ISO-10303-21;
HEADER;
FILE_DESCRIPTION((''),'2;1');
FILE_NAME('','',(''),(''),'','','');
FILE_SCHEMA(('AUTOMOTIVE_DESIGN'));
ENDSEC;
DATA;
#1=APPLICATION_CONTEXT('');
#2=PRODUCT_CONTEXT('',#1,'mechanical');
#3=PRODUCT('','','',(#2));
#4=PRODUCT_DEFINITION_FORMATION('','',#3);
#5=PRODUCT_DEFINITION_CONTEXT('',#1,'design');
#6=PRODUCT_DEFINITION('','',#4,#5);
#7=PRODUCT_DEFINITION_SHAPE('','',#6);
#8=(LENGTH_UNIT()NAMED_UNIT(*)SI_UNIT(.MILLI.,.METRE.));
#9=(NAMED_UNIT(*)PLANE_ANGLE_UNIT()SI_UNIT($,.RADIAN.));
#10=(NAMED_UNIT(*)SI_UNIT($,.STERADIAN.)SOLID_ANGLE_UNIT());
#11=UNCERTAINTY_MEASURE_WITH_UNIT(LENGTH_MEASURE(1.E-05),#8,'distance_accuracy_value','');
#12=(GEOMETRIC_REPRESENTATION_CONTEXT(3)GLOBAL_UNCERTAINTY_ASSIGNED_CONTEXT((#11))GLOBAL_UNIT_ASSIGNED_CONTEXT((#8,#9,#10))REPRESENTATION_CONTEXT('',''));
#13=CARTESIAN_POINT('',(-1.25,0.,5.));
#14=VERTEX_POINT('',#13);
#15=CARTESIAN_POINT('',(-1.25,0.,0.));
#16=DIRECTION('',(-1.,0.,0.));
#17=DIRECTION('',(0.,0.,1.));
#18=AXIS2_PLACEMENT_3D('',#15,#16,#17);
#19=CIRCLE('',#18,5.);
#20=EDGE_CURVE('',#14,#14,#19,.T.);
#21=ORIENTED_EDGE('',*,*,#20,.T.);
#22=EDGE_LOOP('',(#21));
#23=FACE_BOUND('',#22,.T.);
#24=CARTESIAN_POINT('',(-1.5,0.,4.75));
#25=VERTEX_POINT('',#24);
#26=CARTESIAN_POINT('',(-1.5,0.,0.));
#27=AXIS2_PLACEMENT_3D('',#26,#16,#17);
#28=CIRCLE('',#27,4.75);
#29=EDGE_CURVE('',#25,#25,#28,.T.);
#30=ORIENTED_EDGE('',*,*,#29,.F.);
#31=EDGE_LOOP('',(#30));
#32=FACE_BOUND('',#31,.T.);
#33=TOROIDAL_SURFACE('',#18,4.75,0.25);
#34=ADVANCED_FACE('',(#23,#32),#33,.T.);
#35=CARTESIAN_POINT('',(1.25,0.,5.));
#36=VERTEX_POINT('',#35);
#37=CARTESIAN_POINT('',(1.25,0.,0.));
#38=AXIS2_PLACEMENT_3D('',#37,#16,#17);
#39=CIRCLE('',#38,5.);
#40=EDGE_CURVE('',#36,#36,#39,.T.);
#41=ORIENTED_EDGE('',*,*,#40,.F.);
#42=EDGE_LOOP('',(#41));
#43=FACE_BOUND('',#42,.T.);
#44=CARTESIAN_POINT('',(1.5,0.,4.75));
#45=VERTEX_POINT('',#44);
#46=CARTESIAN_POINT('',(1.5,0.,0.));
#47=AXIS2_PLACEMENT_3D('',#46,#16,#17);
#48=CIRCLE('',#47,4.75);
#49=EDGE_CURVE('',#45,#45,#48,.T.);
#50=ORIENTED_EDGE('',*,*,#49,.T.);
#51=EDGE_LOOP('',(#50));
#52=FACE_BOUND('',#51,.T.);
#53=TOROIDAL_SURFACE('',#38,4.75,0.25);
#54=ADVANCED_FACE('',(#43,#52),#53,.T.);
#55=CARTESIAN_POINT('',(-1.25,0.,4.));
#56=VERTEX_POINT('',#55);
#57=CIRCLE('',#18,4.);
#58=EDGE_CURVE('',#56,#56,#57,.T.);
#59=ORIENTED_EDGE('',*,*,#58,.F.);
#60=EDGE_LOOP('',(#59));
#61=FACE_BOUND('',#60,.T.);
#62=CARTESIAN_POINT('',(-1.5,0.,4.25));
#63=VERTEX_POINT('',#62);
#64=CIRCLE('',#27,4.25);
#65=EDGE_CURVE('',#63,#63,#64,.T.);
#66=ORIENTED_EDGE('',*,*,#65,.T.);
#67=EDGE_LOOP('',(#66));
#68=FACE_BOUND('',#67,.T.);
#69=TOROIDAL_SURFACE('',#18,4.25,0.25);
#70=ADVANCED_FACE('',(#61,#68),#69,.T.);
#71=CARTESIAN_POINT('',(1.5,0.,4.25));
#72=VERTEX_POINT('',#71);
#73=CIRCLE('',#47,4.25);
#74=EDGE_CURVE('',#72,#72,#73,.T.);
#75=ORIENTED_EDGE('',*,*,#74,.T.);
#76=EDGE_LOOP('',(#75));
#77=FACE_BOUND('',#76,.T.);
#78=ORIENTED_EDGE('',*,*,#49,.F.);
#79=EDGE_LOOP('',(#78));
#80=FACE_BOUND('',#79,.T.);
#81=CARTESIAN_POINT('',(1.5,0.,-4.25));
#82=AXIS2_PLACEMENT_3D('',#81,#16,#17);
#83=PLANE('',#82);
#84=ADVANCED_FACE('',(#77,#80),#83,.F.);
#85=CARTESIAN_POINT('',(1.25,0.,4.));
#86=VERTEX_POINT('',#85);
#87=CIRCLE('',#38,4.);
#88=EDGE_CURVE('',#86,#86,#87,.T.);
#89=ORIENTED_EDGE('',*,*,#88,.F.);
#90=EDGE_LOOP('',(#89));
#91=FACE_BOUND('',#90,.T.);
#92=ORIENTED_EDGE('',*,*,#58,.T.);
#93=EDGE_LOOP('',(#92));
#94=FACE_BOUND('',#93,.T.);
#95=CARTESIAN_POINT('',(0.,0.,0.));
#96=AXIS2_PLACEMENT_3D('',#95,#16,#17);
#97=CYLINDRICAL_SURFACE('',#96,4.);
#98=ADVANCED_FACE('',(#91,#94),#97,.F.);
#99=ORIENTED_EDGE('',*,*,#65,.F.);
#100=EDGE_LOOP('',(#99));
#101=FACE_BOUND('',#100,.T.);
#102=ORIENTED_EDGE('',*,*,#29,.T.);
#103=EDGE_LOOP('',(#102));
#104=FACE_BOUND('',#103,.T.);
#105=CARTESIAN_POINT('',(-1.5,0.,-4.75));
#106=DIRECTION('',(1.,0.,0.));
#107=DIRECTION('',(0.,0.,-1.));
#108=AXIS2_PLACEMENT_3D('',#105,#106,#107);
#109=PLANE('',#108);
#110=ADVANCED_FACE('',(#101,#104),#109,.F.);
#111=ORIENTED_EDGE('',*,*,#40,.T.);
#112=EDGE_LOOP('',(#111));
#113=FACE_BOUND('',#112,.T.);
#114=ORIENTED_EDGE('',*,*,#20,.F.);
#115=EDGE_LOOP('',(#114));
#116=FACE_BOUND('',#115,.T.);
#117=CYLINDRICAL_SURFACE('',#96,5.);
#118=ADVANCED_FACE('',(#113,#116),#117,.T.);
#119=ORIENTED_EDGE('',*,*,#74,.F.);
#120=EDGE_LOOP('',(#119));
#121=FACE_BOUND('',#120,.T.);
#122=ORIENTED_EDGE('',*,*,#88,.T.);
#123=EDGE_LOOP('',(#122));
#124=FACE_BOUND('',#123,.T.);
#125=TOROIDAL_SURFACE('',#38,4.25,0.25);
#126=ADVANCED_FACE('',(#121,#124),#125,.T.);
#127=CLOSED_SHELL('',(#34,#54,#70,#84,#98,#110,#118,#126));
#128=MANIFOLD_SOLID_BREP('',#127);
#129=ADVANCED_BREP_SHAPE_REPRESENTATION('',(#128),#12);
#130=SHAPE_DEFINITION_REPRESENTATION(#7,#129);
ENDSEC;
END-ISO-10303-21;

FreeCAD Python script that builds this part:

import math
import FreeCAD as App
import Part
import Sketcher
from FreeCAD import Vector
Q = App.Units.Quantity

doc = App.newDocument("Part")
params = doc.addObject("Spreadsheet::Sheet", "Params")
for row, (alias, value) in enumerate([
    ("sketch1_radius", "0.25 mm"),
    ("sketch1_width", "2.5 mm"),
    ("sketch1_height", "0.5 mm"),
    ("revolution_angle", "360 deg"),
], start=1):
    params.set(f"A{row}", alias)
    params.set(f"B{row}", "=" + value)
    params.setAlias(f"B{row}", alias)

body = doc.addObject("PartDesign::Body", "Body")

# Sketch on XZ plane
sketch1 = doc.addObject("Sketcher::SketchObject", "Sketch")
body.addObject(sketch1)
sketch1.AttachmentSupport = (doc.XZ_Plane, [""])
sketch1.MapMode = "FlatFace"
sketch1.addGeometry([
    Part.LineSegment(Vector(1.5, -4.25, 0), Vector(1.5, -4.75, 0)),  # 0
    Part.ArcOfCircle(Part.Circle(Vector(1.25, -4.75, 0), Vector(0, 0, 1), 0.25), math.radians(-90), math.radians(0)),  # 1
    Part.LineSegment(Vector(1.25, -5, 0), Vector(-1.25, -5, 0)),  # 2
    Part.ArcOfCircle(Part.Circle(Vector(-1.25, -4.75, 0), Vector(0, 0, 1), 0.25), math.radians(-180), math.radians(-90)),  # 3
    Part.LineSegment(Vector(-1.5, -4.75, 0), Vector(-1.5, -4.25, 0)),  # 4
    Part.ArcOfCircle(Part.Circle(Vector(-1.25, -4.25, 0), Vector(0, 0, 1), 0.25), math.radians(90), math.radians(180)),  # 5
    Part.LineSegment(Vector(-1.25, -4, 0), Vector(1.25, -4, 0)),  # 6
    Part.ArcOfCircle(Part.Circle(Vector(1.25, -4.25, 0), Vector(0, 0, 1), 0.25), math.radians(0), math.radians(90)),  # 7
], False)
sketch1.addConstraint([
    Sketcher.Constraint("Tangent", 0, 2, 1, 2),
    Sketcher.Constraint("Tangent", 1, 1, 2, 1),
    Sketcher.Constraint("Tangent", 2, 2, 3, 2),
    Sketcher.Constraint("Tangent", 3, 1, 4, 1),
    Sketcher.Constraint("Tangent", 4, 2, 5, 2),
    Sketcher.Constraint("Tangent", 5, 1, 6, 1),
    Sketcher.Constraint("Tangent", 6, 2, 7, 2),
    Sketcher.Constraint("Tangent", 7, 1, 0, 1),
    Sketcher.Constraint("Vertical", 0),
    Sketcher.Constraint("Horizontal", 2),
    Sketcher.Constraint("Vertical", 4),
    Sketcher.Constraint("Horizontal", 6),
    Sketcher.Constraint("Equal", 1, 3),
    Sketcher.Constraint("Equal", 3, 5),
    Sketcher.Constraint("Equal", 5, 7),
    Sketcher.Constraint("Radius", 1, Q("0.25 mm")),
    Sketcher.Constraint("DistanceX", 2, 2, 2, 1, Q("2.5 mm")),
    Sketcher.Constraint("DistanceY", 0, 2, 0, 1, Q("0.5 mm")),
    Sketcher.Constraint("DistanceY", 1, 1, -1, 1, Q("5 mm")),
    Sketcher.Constraint("DistanceX", -1, 1, 0, 2, Q("1.5 mm")),
])
sketch1.setExpression("Constraints[15]", "Params.sketch1_radius")
sketch1.setExpression("Constraints[16]", "Params.sketch1_width")
sketch1.setExpression("Constraints[17]", "Params.sketch1_height")
revolution = doc.addObject("PartDesign::Revolution", "Revolution")
body.addObject(revolution)
revolution.Profile = sketch1
revolution.ReferenceAxis = (sketch1, ["H_Axis"])
revolution.setExpression("Angle", "Params.revolution_angle")

doc.recompute()
